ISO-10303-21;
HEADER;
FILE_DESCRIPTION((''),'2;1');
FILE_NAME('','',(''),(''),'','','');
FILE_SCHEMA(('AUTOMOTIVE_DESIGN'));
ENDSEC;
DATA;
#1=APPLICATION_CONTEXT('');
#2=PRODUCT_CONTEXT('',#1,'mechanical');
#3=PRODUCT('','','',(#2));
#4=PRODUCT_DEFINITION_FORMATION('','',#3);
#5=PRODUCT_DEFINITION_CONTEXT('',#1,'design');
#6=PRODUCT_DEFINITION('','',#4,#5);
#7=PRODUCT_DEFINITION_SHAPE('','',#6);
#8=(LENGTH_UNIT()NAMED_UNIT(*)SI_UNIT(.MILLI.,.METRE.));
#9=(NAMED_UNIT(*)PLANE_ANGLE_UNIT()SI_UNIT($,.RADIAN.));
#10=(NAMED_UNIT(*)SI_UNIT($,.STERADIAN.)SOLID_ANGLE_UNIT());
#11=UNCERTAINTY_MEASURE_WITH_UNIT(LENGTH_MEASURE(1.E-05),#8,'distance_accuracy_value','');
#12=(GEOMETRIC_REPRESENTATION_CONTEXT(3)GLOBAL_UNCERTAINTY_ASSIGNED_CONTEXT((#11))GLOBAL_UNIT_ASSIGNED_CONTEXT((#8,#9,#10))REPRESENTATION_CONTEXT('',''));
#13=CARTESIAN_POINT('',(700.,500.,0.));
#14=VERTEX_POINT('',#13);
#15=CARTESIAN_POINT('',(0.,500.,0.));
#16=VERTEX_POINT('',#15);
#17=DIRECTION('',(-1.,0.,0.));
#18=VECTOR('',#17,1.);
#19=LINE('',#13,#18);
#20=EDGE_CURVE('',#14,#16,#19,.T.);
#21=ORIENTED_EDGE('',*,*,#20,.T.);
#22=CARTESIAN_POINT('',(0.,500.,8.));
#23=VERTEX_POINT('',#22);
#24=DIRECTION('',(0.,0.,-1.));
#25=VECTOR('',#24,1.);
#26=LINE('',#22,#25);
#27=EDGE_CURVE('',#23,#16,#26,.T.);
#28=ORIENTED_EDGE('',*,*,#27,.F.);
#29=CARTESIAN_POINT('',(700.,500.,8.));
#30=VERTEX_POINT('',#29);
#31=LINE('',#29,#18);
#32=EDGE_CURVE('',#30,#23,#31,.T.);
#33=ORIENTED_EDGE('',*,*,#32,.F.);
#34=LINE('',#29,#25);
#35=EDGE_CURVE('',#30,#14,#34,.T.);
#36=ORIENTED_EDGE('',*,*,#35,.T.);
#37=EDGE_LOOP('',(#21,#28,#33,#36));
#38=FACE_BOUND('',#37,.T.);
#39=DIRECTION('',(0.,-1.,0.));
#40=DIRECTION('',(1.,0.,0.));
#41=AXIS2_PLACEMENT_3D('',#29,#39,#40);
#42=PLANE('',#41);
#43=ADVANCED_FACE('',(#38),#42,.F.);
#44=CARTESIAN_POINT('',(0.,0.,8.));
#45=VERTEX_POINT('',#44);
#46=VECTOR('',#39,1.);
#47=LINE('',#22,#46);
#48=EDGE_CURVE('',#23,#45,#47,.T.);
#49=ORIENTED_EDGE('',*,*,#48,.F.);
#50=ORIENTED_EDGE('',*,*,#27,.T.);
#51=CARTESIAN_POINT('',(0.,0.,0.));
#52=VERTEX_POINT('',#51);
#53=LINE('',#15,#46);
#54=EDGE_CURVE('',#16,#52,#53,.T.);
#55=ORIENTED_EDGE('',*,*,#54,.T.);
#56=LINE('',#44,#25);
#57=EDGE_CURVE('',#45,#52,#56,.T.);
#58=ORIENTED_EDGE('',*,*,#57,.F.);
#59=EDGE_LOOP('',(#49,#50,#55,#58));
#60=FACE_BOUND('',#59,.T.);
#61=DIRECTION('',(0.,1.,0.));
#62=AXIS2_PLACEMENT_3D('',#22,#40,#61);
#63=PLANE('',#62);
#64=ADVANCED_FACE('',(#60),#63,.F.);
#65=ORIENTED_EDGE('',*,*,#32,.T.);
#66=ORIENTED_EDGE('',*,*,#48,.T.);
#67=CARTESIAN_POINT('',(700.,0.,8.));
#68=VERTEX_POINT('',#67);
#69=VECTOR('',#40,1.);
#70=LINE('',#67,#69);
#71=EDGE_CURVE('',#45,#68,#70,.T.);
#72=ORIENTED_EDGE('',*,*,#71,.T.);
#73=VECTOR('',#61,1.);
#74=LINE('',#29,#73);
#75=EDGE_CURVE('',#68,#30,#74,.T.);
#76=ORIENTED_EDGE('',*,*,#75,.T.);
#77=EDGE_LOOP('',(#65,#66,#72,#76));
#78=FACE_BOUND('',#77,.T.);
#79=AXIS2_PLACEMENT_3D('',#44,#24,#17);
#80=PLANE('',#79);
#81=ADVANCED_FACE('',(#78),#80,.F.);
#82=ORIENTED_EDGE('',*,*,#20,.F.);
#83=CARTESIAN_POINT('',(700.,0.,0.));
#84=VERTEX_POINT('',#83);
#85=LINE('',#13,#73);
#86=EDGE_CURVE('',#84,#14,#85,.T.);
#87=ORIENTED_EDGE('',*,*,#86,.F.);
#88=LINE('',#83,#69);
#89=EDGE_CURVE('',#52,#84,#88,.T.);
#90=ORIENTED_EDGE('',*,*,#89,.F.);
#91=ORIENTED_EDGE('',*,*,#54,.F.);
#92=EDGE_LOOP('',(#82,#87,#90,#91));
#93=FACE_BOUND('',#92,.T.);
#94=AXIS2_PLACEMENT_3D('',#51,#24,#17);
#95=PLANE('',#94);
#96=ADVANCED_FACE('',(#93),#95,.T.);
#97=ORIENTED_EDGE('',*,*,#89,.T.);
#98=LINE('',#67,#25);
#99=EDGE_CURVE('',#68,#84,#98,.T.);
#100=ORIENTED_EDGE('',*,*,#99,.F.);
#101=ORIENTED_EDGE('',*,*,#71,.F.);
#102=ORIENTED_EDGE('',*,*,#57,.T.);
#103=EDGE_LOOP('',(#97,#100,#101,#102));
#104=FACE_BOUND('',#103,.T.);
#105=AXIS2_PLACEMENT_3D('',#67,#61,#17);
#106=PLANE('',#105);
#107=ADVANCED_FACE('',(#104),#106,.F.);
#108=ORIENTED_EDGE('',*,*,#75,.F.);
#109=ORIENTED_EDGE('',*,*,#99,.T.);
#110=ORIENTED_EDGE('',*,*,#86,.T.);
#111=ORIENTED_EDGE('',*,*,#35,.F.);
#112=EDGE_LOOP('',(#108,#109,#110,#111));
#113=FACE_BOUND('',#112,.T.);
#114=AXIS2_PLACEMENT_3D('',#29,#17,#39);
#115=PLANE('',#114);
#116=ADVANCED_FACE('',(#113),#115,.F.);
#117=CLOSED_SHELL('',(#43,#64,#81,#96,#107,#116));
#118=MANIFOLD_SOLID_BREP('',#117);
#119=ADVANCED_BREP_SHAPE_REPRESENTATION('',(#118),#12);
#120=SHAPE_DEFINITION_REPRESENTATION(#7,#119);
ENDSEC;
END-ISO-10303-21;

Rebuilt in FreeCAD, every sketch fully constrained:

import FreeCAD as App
import Part
import Sketcher

V = App.Vector
Q = App.Units.Quantity

doc = App.newDocument("Part")
params = doc.addObject("Spreadsheet::Sheet", "Params")
for row, (alias, value) in enumerate([
    ("sketch1_width", "700 mm"),
    ("sketch1_height", "500 mm"),
    ("pad1_length", "8 mm"),
], start=1):
    params.set(f"A{row}", alias)
    params.set(f"B{row}", "=" + value)
    params.setAlias(f"B{row}", alias)

body = doc.addObject("PartDesign::Body", "Body")

sketch1 = body.newObject("Sketcher::SketchObject", "Sketch")
sketch1.AttachmentSupport = (doc.getObject("XY_Plane"), [""])
sketch1.MapMode = "FlatFace"
sketch1.addGeometry(Part.LineSegment(V(0, 500, 0), V(0, 0, 0)), False)
sketch1.addGeometry(Part.LineSegment(V(0, 0, 0), V(700, 0, 0)), False)
sketch1.addGeometry(Part.LineSegment(V(700, 0, 0), V(700, 500, 0)), False)
sketch1.addGeometry(Part.LineSegment(V(700, 500, 0), V(0, 500, 0)), False)
sketch1.addConstraint(Sketcher.Constraint("Coincident", 0, 2, 1, 1))
sketch1.addConstraint(Sketcher.Constraint("Coincident", 1, 2, 2, 1))
sketch1.addConstraint(Sketcher.Constraint("Coincident", 2, 2, 3, 1))
sketch1.addConstraint(Sketcher.Constraint("Coincident", 3, 2, 0, 1))
sketch1.addConstraint(Sketcher.Constraint("Vertical", 0))
sketch1.addConstraint(Sketcher.Constraint("Horizontal", 1))
sketch1.addConstraint(Sketcher.Constraint("Vertical", 2))
sketch1.addConstraint(Sketcher.Constraint("Horizontal", 3))
sketch1.addConstraint(Sketcher.Constraint("Coincident", 0, 2, -1, 1))
sketch1.addConstraint(Sketcher.Constraint("DistanceX", 1, 1, 1, 2, Q("700 mm")))
sketch1.addConstraint(Sketcher.Constraint("DistanceY", 0, 2, 0, 1, Q("500 mm")))
sketch1.setExpression("Constraints[9]", "Params.sketch1_width")
sketch1.setExpression("Constraints[10]", "Params.sketch1_height")
pad1 = body.newObject("PartDesign::Pad", "Pad")
pad1.Profile = sketch1
pad1.setExpression("Length", "Params.pad1_length")

doc.recompute()
